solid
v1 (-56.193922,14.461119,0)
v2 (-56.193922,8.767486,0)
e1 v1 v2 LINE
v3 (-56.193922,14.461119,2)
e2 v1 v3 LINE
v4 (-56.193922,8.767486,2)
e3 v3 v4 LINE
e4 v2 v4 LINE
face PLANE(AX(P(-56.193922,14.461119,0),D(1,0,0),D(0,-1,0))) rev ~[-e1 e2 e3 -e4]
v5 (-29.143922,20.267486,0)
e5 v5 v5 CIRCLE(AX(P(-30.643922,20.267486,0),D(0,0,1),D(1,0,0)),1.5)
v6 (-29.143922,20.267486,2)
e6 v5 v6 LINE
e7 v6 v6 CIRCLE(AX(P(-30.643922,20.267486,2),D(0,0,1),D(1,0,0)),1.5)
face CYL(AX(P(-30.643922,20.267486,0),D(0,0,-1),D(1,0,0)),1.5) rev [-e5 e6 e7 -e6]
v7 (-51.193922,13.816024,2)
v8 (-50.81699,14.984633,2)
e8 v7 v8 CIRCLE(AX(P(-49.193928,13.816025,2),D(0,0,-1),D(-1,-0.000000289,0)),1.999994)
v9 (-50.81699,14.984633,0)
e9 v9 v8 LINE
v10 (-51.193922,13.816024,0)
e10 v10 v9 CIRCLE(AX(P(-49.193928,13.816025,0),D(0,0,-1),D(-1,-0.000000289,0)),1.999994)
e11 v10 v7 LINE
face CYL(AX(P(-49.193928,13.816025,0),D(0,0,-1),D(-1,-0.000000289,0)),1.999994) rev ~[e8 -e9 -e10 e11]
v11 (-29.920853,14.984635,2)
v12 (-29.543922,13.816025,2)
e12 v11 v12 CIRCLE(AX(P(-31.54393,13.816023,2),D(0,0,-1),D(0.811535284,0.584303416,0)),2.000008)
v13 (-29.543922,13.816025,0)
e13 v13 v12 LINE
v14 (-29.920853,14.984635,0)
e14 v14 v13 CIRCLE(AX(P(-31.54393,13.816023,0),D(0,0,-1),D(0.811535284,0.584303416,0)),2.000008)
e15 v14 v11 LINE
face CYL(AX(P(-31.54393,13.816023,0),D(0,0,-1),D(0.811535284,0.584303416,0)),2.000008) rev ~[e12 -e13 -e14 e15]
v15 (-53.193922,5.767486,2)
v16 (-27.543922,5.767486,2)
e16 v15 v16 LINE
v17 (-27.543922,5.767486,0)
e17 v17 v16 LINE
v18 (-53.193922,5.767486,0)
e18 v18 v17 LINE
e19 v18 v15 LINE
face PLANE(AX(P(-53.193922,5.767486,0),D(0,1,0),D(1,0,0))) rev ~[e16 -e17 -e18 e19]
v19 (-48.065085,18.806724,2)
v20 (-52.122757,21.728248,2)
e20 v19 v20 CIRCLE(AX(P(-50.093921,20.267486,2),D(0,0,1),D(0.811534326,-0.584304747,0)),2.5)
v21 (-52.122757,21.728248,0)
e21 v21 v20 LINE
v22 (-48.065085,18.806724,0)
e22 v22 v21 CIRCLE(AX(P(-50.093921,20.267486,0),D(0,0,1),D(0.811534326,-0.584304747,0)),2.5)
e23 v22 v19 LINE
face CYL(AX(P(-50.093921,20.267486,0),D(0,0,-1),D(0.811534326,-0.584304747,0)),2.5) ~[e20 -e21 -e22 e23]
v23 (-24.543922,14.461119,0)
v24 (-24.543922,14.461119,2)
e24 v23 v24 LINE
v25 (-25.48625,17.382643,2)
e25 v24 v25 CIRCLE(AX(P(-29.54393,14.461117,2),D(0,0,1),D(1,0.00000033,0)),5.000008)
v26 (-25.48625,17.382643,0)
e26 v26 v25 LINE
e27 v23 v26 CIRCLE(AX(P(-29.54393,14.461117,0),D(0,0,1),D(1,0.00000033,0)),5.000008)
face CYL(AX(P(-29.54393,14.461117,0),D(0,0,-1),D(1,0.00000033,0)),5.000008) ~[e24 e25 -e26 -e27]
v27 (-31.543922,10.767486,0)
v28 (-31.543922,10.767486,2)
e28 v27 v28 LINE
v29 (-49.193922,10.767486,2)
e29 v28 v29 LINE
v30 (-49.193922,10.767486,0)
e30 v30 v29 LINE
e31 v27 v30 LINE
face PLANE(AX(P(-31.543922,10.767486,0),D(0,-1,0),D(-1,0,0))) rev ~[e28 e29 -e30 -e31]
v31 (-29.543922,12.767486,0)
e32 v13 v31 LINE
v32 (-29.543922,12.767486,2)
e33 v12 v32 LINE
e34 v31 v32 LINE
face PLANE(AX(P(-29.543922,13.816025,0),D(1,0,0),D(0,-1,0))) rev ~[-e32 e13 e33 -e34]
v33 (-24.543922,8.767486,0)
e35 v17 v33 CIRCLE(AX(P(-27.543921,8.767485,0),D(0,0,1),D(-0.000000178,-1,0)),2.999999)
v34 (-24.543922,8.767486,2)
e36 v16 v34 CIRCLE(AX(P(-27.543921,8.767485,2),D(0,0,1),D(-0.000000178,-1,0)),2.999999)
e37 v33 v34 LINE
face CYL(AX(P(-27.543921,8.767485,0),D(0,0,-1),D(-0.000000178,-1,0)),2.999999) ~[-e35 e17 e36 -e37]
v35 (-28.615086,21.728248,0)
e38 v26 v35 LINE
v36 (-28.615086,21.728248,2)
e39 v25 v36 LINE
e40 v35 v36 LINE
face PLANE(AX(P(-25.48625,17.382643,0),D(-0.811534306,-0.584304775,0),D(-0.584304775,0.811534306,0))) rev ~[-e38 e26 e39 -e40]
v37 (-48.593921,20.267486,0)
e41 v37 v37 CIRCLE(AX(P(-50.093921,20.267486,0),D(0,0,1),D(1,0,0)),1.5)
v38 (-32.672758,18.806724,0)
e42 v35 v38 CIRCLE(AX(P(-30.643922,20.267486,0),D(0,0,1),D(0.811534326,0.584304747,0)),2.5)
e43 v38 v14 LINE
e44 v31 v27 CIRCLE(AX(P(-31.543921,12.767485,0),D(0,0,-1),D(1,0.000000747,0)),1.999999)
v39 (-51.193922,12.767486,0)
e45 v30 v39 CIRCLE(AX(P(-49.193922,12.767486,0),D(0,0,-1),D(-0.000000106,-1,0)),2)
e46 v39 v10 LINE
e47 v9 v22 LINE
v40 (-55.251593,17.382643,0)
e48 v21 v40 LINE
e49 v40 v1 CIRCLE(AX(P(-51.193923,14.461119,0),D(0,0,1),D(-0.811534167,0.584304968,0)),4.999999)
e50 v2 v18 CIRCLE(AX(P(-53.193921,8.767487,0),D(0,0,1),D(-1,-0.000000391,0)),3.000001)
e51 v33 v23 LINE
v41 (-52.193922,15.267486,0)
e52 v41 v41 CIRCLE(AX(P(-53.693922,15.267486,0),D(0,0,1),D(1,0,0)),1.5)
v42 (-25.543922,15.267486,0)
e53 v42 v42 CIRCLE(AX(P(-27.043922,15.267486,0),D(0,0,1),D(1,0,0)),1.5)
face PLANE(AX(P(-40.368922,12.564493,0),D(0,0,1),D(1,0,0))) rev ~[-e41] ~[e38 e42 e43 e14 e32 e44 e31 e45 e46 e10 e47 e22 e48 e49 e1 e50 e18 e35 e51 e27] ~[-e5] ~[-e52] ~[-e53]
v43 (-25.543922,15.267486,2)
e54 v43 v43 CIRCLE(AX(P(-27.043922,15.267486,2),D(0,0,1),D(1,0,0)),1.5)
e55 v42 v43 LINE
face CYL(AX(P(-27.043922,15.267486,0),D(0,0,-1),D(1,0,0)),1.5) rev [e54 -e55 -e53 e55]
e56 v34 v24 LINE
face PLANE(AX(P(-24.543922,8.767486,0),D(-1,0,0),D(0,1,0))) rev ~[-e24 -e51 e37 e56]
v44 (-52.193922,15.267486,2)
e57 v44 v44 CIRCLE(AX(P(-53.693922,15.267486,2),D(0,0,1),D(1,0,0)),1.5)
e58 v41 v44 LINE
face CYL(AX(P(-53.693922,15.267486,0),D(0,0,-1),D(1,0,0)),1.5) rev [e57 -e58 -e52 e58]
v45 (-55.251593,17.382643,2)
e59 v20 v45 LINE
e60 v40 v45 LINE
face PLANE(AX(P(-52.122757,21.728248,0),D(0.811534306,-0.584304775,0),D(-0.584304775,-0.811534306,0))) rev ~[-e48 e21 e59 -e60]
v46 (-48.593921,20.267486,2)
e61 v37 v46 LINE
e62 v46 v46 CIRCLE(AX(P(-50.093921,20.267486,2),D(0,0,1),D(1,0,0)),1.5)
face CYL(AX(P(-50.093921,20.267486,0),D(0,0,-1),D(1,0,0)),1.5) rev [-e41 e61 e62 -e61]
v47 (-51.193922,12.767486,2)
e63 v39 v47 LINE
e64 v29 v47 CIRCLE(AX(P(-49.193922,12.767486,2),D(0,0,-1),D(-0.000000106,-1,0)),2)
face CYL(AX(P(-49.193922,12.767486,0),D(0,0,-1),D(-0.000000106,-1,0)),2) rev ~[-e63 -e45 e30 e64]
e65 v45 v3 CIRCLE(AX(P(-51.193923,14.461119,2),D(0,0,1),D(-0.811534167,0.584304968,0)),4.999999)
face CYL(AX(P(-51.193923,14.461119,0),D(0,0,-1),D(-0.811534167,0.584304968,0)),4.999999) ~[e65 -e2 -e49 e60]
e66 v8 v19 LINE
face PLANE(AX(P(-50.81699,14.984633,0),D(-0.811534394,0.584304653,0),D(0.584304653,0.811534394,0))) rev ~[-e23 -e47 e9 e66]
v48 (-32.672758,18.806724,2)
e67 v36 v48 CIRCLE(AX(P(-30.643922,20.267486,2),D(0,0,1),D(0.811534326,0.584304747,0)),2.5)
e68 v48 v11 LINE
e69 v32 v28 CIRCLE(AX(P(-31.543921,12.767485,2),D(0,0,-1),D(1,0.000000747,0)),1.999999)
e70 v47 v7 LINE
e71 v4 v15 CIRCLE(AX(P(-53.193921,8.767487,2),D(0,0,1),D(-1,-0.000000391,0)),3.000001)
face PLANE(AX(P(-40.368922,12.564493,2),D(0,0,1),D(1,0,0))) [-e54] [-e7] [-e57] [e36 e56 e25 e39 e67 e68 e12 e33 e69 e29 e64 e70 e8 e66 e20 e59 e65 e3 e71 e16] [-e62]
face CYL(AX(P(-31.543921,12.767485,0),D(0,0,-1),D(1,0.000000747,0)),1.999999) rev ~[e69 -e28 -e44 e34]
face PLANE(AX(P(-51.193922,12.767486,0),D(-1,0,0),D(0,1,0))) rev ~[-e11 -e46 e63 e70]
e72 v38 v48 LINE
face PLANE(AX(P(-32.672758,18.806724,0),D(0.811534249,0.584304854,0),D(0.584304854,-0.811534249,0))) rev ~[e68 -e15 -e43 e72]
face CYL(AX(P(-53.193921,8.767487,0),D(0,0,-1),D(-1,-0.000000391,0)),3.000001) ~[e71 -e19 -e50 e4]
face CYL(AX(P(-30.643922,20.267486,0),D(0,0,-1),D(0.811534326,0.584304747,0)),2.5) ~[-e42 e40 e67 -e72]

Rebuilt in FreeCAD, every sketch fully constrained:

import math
import FreeCAD as App
import Part
import Sketcher
from FreeCAD import Vector
Q = App.Units.Quantity

doc = App.newDocument("Part")
body = doc.addObject("PartDesign::Body", "Body")

# Sketch on XY plane
sketch1 = body.newObject("Sketcher::SketchObject", "Sketch")
sketch1.AttachmentSupport = (doc.getObject("XY_Plane"), [""])
sketch1.MapMode = "FlatFace"
sketch1.addGeometry([
    Part.ArcOfCircle(Part.Circle(Vector(-53.2, 8.8, 0), Vector(0, 0, 1), 3), math.radians(-180), math.radians(-90)),  # 0
    Part.LineSegment(Vector(-53.2, 5.8, 0), Vector(-27.5, 5.8, 0)),  # 1
    Part.ArcOfCircle(Part.Circle(Vector(-27.5, 8.8, 0), Vector(0, 0, 1), 3), math.radians(-90), math.radians(0)),  # 2
    Part.LineSegment(Vector(-24.5, 8.8, 0), Vector(-24.5, 14.5, 0)),  # 3
    Part.ArcOfCircle(Part.Circle(Vector(-29.5, 14.5, 0), Vector(0, 0, 1), 5), math.radians(0), math.radians(36)),  # 4
    Part.LineSegment(Vector(-25.5, 17.4, 0), Vector(-28.6, 21.7, 0)),  # 5
    Part.ArcOfCircle(Part.Circle(Vector(-30.6, 20.3, 0), Vector(0, 0, 1), 2.5), math.radians(36), math.radians(216)),  # 6
    Part.LineSegment(Vector(-32.7, 18.8, 0), Vector(-29.9, 15, 0)),  # 7
    Part.ArcOfCircle(Part.Circle(Vector(-31.5, 13.8, 0), Vector(0, 0, 1), 2), math.radians(0), math.radians(36)),  # 8
    Part.LineSegment(Vector(-29.5, 13.8, 0), Vector(-29.5, 12.8, 0)),  # 9
    Part.ArcOfCircle(Part.Circle(Vector(-31.5, 12.8, 0), Vector(0, 0, 1), 2), math.radians(-90), math.radians(0)),  # 10
    Part.LineSegment(Vector(-31.5, 10.8, 0), Vector(-49.2, 10.8, 0)),  # 11
    Part.ArcOfCircle(Part.Circle(Vector(-49.2, 12.8, 0), Vector(0, 0, 1), 2), math.radians(-180), math.radians(-90)),  # 12
    Part.LineSegment(Vector(-51.2, 12.8, 0), Vector(-51.2, 13.8, 0)),  # 13
    Part.ArcOfCircle(Part.Circle(Vector(-49.2, 13.8, 0), Vector(0, 0, 1), 2), math.radians(144), math.radians(180)),  # 14
    Part.LineSegment(Vector(-50.8, 15, 0), Vector(-48.1, 18.8, 0)),  # 15
    Part.ArcOfCircle(Part.Circle(Vector(-50.1, 20.3, 0), Vector(0, 0, 1), 2.5), math.radians(-36), math.radians(144)),  # 16
    Part.LineSegment(Vector(-52.1, 21.7, 0), Vector(-55.3, 17.4, 0)),  # 17
    Part.ArcOfCircle(Part.Circle(Vector(-51.2, 14.5, 0), Vector(0, 0, 1), 5), math.radians(144), math.radians(180)),  # 18
    Part.LineSegment(Vector(-56.2, 14.5, 0), Vector(-56.2, 8.8, 0)),  # 19
    Part.Circle(Vector(-53.7, 15.3, 0), Vector(0, 0, 1), 1.5),  # 20
    Part.Circle(Vector(-27, 15.3, 0), Vector(0, 0, 1), 1.5),  # 21
    Part.Circle(Vector(-50.1, 20.3, 0), Vector(0, 0, 1), 1.5),  # 22
    Part.Circle(Vector(-30.6, 20.3, 0), Vector(0, 0, 1), 1.5),  # 23
], False)
sketch1.addConstraint([
    Sketcher.Constraint("Tangent", 0, 2, 1, 1),
    Sketcher.Constraint("Tangent", 1, 2, 2, 1),
    Sketcher.Constraint("Tangent", 2, 2, 3, 1),
    Sketcher.Constraint("Tangent", 3, 2, 4, 1),
    Sketcher.Constraint("Tangent", 4, 2, 5, 1),
    Sketcher.Constraint("Tangent", 5, 2, 6, 1),
    Sketcher.Constraint("Tangent", 6, 2, 7, 1),
    Sketcher.Constraint("Tangent", 7, 2, 8, 2),
    Sketcher.Constraint("Tangent", 8, 1, 9, 1),
    Sketcher.Constraint("Tangent", 9, 2, 10, 2),
    Sketcher.Constraint("Tangent", 10, 1, 11, 1),
    Sketcher.Constraint("Tangent", 11, 2, 12, 2),
    Sketcher.Constraint("Tangent", 12, 1, 13, 1),
    Sketcher.Constraint("Tangent", 13, 2, 14, 2),
    Sketcher.Constraint("Tangent", 14, 1, 15, 1),
    Sketcher.Constraint("Tangent", 15, 2, 16, 1),
    Sketcher.Constraint("Tangent", 16, 2, 17, 1),
    Sketcher.Constraint("Tangent", 17, 2, 18, 1),
    Sketcher.Constraint("Tangent", 18, 2, 19, 1),
    Sketcher.Constraint("Tangent", 19, 2, 0, 1),
    Sketcher.Constraint("Horizontal", 1),
    Sketcher.Constraint("Vertical", 3),
    Sketcher.Constraint("Vertical", 9),
    Sketcher.Constraint("Horizontal", 11),
    Sketcher.Constraint("Vertical", 13),
    Sketcher.Constraint("Vertical", 19),
    Sketcher.Constraint("Coincident", 22, 3, 16, 3),
    Sketcher.Constraint("Coincident", 23, 3, 6, 3),
    Sketcher.Constraint("Equal", 0, 2),
    Sketcher.Constraint("Equal", 10, 12),
    Sketcher.Constraint("Equal", 6, 16),
    Sketcher.Constraint("Equal", 20, 21),
    Sketcher.Constraint("Equal", 21, 22),
    Sketcher.Constraint("Equal", 22, 23),
    Sketcher.Constraint("Parallel", 5, 7),
    Sketcher.Constraint("Parallel", 15, 17),
    Sketcher.Constraint("Horizontal", 8, 3, 14, 3),
    Sketcher.Constraint("Horizontal", 6, 3, 16, 3),
    Sketcher.Constraint("Horizontal", 4, 3, 18, 3),
    Sketcher.Constraint("Horizontal", 20, 3, 21, 3),
    Sketcher.Constraint("Horizontal", 6, 2, 15, 2),
    Sketcher.Constraint("Horizontal", 4, 2, 17, 2),
    Sketcher.Constraint("Vertical", 18, 3, 12, 1),
    Sketcher.Constraint("Equal", 7, 15),
    Sketcher.Constraint("Diameter", 20, Q("3 mm")),
    Sketcher.Constraint("Radius", 0, Q("3.000001 mm")),
    Sketcher.Constraint("Radius", 10, Q("1.999999 mm")),
    Sketcher.Constraint("Radius", 18, Q("4.999999 mm")),
    Sketcher.Constraint("Radius", 6, Q("2.5 mm")),
    Sketcher.Constraint("DistanceX", 8, 3, 4, 3, Q("2.000001 mm")),
    Sketcher.Constraint("DistanceY", 2, 3, 10, 3, Q("3.999999 mm")),
    Sketcher.Constraint("DistanceY", 20, 3, 16, 3, Q("5 mm")),
    Sketcher.Constraint("DistanceX", 1, 1, 1, 2, Q("25.65 mm")),
    Sketcher.Constraint("DistanceX", 6, 3, 2, 3, Q("3.100001 mm")),
    Sketcher.Constraint("DistanceY", 2, 3, 6, 3, Q("11.500001 mm")),
    Sketcher.Constraint("DistanceX", 20, 3, 18, 3, Q("2.499999 mm")),
    Sketcher.Constraint("DistanceX", 10, 3, 21, 3, Q("4.499999 mm")),
    Sketcher.Constraint("Distance", 5, Q("5.354801 mm")),
    Sketcher.Constraint("DistanceX", 0, 3, -1, 1, Q("53.193921 mm")),
    Sketcher.Constraint("DistanceY", -1, 1, 18, 3, Q("14.461119 mm")),
])
pad1 = body.newObject("PartDesign::Pad", "Pad")
pad1.Profile = sketch1
pad1.Length = 2

doc.recompute()
